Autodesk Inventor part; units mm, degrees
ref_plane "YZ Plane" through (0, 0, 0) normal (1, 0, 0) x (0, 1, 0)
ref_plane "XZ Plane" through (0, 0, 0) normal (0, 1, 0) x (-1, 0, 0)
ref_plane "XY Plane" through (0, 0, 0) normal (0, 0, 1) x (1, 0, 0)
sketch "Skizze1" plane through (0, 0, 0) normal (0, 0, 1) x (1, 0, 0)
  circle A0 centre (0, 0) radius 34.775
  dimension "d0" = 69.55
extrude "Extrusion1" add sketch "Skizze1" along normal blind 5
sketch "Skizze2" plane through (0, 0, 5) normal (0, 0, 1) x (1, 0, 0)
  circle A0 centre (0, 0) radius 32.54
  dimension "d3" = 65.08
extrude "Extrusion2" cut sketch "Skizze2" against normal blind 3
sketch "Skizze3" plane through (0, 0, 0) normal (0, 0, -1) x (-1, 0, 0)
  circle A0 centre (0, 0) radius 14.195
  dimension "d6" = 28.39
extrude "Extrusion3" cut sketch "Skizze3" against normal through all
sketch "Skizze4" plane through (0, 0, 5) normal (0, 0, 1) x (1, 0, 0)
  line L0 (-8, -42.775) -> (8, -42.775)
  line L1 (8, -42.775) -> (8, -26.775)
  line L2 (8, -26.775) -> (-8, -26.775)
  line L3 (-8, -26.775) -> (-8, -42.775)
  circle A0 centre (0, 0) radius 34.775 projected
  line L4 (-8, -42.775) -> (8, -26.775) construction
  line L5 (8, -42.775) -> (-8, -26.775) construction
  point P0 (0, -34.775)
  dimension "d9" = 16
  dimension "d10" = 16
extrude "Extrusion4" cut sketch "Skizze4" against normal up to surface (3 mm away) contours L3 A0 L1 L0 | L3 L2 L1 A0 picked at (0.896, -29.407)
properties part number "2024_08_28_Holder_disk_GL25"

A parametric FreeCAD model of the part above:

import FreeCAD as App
import Part
import Sketcher
from FreeCAD import Vector

doc = App.newDocument("Part")
body = doc.addObject("PartDesign::Body", "Body")

# Sketch on XY plane
sketch1 = body.newObject("Sketcher::SketchObject", "Sketch")
sketch1.AttachmentSupport = (doc.getObject("XY_Plane"), [""])
sketch1.MapMode = "FlatFace"
sketch1.addGeometry(Part.Circle(Vector(0, 0, 0), Vector(0, 0, 1), 34.775), False)
sketch1.addConstraint([
    Sketcher.Constraint("Coincident", 0, 3, -1, 1),
    Sketcher.Constraint("Diameter", 0, 69.55),
])
pad1 = body.newObject("PartDesign::Pad", "Pad")
pad1.Profile = sketch1
pad1.Length = 5

# Sketch on XY plane
sketch2 = body.newObject("Sketcher::SketchObject", "Sketch001")
sketch2.AttachmentSupport = (doc.getObject("XY_Plane"), [""])
sketch2.MapMode = "FlatFace"
sketch2.AttachmentOffset = App.Placement(Vector(0, 0, 5), App.Rotation())
sketch2.addGeometry(Part.Circle(Vector(0, 0, 0), Vector(0, 0, 1), 32.54), False)
sketch2.addConstraint([
    Sketcher.Constraint("Coincident", 0, 3, -1, 1),
    Sketcher.Constraint("Diameter", 0, 65.08),
])
pocket1 = body.newObject("PartDesign::Pocket", "Pocket")
pocket1.Profile = sketch2
pocket1.Length = 3

# Sketch on XY plane
sketch3 = body.newObject("Sketcher::SketchObject", "Sketch002")
sketch3.AttachmentSupport = (doc.getObject("XY_Plane"), [""])
sketch3.MapMode = "FlatFace"
sketch3.addGeometry(Part.Circle(Vector(0, 0, 0), Vector(0, 0, 1), 14.195), False)
sketch3.addConstraint([
    Sketcher.Constraint("Coincident", 0, 3, -1, 1),
    Sketcher.Constraint("Diameter", 0, 28.39),
])
pocket2 = body.newObject("PartDesign::Pocket", "Pocket001")
pocket2.Profile = sketch3
pocket2.Type = "ThroughAll"
pocket2.Reversed = True

# Sketch on XY plane
sketch4 = body.newObject("Sketcher::SketchObject", "Sketch003")
sketch4.AttachmentSupport = (doc.getObject("XY_Plane"), [""])
sketch4.MapMode = "FlatFace"
sketch4.AttachmentOffset = App.Placement(Vector(0, 0, 5), App.Rotation())
sketch4.addGeometry([
    Part.LineSegment(Vector(-8, -42.775, 0), Vector(8, -42.775, 0)),
    Part.LineSegment(Vector(8, -42.775, 0), Vector(8, -26.775, 0)),
    Part.LineSegment(Vector(8, -26.775, 0), Vector(-8, -26.775, 0)),
    Part.LineSegment(Vector(-8, -26.775, 0), Vector(-8, -42.775, 0)),
], False)
sketch4.addConstraint([
    Sketcher.Constraint("Coincident", 0, 2, 1, 1),
    Sketcher.Constraint("Coincident", 1, 2, 2, 1),
    Sketcher.Constraint("Coincident", 2, 2, 3, 1),
    Sketcher.Constraint("Coincident", 3, 2, 0, 1),
    Sketcher.Constraint("Horizontal", 0),
    Sketcher.Constraint("Vertical", 1),
    Sketcher.Constraint("Horizontal", 2),
    Sketcher.Constraint("Vertical", 3),
    Sketcher.Constraint("Equal", 2, 1),
    Sketcher.Constraint("DistanceX", 0, 1, 0, 2, 16.0),
    Sketcher.Constraint("DistanceX", -1, 1, 0, 2, 8.0),
    Sketcher.Constraint("DistanceY", 0, 2, -1, 1, 42.775),
])
pocket3 = body.newObject("PartDesign::Pocket", "Pocket002")
pocket3.Profile = sketch4
pocket3.Length = 3

doc.recompute()
